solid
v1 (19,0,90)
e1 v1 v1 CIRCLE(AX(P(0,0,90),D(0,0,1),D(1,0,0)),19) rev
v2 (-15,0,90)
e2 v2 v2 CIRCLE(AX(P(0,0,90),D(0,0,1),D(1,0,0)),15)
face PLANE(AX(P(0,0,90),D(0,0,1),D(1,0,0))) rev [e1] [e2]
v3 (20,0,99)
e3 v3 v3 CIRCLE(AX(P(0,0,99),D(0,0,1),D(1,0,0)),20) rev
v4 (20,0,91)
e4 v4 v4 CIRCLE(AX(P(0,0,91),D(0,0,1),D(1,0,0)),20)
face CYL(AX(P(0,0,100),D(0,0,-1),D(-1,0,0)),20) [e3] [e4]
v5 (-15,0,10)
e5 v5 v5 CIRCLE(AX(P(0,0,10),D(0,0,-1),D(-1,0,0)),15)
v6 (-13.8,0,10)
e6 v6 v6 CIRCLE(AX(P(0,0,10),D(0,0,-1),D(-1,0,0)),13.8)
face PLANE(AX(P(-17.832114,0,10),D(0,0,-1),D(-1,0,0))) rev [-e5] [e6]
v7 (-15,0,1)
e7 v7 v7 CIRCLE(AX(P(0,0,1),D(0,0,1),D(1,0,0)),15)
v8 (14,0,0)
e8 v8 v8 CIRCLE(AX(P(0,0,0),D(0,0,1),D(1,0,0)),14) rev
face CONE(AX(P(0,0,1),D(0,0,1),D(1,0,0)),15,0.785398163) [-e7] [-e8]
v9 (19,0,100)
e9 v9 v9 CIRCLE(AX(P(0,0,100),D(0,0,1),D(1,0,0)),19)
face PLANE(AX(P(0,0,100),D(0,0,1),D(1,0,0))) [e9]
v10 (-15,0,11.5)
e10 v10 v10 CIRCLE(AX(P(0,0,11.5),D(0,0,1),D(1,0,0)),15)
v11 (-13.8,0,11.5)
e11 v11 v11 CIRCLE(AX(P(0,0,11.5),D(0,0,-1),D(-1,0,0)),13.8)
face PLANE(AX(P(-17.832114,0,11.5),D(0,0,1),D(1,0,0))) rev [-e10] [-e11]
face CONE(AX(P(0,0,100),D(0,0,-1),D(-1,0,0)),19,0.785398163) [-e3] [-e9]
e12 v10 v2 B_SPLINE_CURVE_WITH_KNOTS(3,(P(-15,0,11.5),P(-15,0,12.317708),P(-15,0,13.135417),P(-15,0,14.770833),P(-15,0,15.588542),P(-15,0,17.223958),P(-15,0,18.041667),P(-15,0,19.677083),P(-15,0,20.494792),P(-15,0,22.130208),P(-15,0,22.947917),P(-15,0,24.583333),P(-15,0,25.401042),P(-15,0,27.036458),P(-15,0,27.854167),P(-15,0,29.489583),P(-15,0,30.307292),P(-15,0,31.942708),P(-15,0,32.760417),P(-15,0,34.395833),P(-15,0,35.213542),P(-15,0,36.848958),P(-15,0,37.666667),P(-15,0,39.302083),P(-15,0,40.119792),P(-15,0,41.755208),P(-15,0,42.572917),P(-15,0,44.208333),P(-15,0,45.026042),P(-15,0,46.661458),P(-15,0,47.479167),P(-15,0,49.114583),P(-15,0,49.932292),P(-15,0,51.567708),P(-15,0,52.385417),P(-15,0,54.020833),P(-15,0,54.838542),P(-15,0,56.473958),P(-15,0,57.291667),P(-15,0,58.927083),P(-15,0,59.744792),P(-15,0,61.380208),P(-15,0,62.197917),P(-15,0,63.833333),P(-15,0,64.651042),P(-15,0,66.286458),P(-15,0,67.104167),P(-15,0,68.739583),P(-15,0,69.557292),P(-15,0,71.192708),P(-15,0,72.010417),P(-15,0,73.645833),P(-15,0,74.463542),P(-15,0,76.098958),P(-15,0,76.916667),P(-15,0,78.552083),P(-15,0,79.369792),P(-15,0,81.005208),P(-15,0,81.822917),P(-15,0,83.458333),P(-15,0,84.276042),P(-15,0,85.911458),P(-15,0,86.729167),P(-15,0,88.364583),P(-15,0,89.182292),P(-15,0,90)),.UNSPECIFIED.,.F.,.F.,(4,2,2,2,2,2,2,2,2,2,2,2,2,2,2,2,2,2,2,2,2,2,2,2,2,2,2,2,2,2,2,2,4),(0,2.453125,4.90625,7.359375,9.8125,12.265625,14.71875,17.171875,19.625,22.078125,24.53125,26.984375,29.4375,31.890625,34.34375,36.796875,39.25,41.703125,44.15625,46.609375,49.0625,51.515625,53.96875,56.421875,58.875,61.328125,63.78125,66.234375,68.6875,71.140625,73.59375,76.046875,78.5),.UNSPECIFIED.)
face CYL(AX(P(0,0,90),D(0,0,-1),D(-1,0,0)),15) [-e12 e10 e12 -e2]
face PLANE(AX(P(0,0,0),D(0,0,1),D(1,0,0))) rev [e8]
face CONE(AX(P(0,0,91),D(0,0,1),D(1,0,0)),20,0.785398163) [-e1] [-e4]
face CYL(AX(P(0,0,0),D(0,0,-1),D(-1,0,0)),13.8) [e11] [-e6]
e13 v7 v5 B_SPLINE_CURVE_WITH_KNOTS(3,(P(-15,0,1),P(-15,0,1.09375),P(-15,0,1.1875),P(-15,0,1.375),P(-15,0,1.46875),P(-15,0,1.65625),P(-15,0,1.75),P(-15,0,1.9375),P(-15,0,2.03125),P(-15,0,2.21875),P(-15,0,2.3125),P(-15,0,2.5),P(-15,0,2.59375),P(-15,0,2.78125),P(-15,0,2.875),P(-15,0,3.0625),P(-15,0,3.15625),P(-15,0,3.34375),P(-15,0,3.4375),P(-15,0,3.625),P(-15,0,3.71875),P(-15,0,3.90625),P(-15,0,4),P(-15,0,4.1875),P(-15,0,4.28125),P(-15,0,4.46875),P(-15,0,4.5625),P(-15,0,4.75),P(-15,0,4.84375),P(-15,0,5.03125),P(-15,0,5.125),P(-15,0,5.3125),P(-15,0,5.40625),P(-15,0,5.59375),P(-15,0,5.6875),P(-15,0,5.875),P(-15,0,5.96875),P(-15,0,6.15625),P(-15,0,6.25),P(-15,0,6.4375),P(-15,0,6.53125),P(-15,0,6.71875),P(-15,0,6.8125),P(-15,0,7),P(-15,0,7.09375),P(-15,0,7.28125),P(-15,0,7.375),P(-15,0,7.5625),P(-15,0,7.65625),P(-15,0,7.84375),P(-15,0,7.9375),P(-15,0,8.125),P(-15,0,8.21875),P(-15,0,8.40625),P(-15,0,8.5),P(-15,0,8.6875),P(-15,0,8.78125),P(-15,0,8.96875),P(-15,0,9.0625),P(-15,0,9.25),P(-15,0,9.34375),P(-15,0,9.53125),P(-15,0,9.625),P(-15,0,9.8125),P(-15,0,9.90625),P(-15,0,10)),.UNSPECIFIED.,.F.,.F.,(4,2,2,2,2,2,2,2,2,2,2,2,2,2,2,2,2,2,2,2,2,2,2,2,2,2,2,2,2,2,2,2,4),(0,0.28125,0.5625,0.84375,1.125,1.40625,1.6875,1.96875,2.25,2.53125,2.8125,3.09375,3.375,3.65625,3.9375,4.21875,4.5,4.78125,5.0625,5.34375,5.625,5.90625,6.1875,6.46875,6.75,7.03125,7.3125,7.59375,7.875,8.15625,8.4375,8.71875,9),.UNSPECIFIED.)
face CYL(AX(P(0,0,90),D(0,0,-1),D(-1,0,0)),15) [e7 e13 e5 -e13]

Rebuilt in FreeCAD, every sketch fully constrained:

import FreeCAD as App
import Part
import Sketcher
from FreeCAD import Vector
Q = App.Units.Quantity


def edges_at(feature, points):
    """Names of the edges that pass closest to the given points."""
    edges = feature.Shape.Edges
    near = lambda p: min(range(len(edges)), key=lambda i: edges[i].distToShape(Part.Vertex(*p))[0])
    return sorted({f"Edge{near(p) + 1}" for p in points})


def add_polygon(sketch, points):
    """Adds a closed chain of lines whose ends are joined by coincident constraints."""
    first, n = sketch.GeometryCount, len(points)
    for a, b in zip(points, points[1:] + points[:1]):
        sketch.addGeometry(Part.LineSegment(App.Vector(*a, 0), App.Vector(*b, 0)), False)
    for i in range(n):
        sketch.addConstraint(Sketcher.Constraint("Coincident", first + i, 2, first + (i + 1) % n, 1))

doc = App.newDocument("Part")
body = doc.addObject("PartDesign::Body", "Body")

# Sketch on XY plane
sketch1 = body.newObject("Sketcher::SketchObject", "Sketch")
sketch1.AttachmentSupport = (doc.getObject("XY_Plane"), [""])
sketch1.MapMode = "FlatFace"
sketch1.addGeometry(Part.Circle(Vector(0, 0, 0), Vector(0, 0, 1), 15), False)
sketch1.addConstraint(Sketcher.Constraint("Coincident", 0, 3, -1, 1))
sketch1.addConstraint(Sketcher.Constraint("Diameter", 0, Q("30 mm")))
pad1 = body.newObject("PartDesign::Pad", "Pad")
pad1.Profile = sketch1
pad1.Length = 90

# Sketch on XY plane
sketch2 = body.newObject("Sketcher::SketchObject", "Sketch001")
sketch2.AttachmentSupport = (doc.getObject("XY_Plane"), [""])
sketch2.MapMode = "FlatFace"
sketch2.AttachmentOffset = App.Placement(Vector(0, 0, 90), App.Rotation())
sketch2.addGeometry(Part.Circle(Vector(0, 0, 0), Vector(0, 0, 1), 20), False)
sketch2.addConstraint(Sketcher.Constraint("Coincident", 0, 3, -1, 1))
sketch2.addConstraint(Sketcher.Constraint("Diameter", 0, Q("40 mm")))
pad2 = body.newObject("PartDesign::Pad", "Pad001")
pad2.Profile = sketch2
pad2.Length = 10

# Sketch on XZ plane
sketch3 = body.newObject("Sketcher::SketchObject", "Sketch002")
sketch3.AttachmentSupport = (doc.getObject("XZ_Plane"), [""])
sketch3.MapMode = "FlatFace"
add_polygon(sketch3, [(-17.832114, 10), (-17.832114, 11.5), (-13.8, 11.5), (-13.8, 10)])  # lines 0-3
sketch3.addConstraint(Sketcher.Constraint("Vertical", 0))
sketch3.addConstraint(Sketcher.Constraint("Horizontal", 1))
sketch3.addConstraint(Sketcher.Constraint("Vertical", 2))
sketch3.addConstraint(Sketcher.Constraint("Horizontal", 3))
sketch3.addConstraint(Sketcher.Constraint("DistanceY", 0, 1, 0, 2, Q("1.5 mm")))
sketch3.addConstraint(Sketcher.Constraint("DistanceY", -1, 1, 2, 2, Q("10 mm")))
sketch3.addConstraint(Sketcher.Constraint("DistanceX", 1, 2, -1, 1, Q("13.8 mm")))
sketch3.addConstraint(Sketcher.Constraint("DistanceX", 1, 1, 1, 2, Q("4.032114 mm")))
groove = body.newObject("PartDesign::Groove", "Groove")
groove.Profile = sketch3
groove.ReferenceAxis = (sketch3, ["V_Axis"])
groove.Angle = 360
doc.recompute()

chamfer = body.newObject("PartDesign::Chamfer", "Chamfer")
chamfer.Base = (groove, edges_at(groove, [(15, 0, 0), (-20, 0, 90), (-20, 0, 100)]))
chamfer.Size = 1

doc.recompute()
